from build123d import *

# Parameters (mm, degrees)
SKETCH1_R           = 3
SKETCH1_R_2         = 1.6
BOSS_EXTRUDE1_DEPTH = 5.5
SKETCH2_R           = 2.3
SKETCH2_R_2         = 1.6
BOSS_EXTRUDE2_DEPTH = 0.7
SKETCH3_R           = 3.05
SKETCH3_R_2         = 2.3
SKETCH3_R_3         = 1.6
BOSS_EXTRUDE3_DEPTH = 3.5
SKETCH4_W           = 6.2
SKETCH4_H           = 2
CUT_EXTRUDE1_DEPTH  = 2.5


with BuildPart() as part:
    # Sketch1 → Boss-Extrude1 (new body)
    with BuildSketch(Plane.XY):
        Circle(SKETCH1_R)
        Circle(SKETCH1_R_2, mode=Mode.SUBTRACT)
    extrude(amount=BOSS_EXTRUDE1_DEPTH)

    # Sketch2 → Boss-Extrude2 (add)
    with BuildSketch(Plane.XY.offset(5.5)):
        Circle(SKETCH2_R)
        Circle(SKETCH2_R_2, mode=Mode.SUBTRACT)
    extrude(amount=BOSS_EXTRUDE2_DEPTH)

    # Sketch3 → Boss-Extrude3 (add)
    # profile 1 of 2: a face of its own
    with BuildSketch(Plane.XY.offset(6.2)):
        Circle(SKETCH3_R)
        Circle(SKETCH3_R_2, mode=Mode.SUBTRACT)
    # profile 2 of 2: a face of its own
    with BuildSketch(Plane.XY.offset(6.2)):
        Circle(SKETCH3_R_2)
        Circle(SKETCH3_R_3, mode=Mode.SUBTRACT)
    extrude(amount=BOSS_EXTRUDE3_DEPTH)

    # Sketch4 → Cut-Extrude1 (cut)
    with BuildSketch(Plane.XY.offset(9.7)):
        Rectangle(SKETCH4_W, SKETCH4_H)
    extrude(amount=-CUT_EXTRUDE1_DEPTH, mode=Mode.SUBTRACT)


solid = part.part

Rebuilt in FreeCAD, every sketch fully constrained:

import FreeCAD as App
import Part
import Sketcher
from FreeCAD import Vector

doc = App.newDocument("Part")
params = doc.addObject("Spreadsheet::Sheet", "Params")
for row, (alias, value) in enumerate([
    ("sketch1_diameter", "6 mm"),
    ("sketch1_diameter2", "3.2 mm"),
    ("pad1_length", "5.5 mm"),
    ("sketch2_diameter", "4.6 mm"),
    ("sketch2_diameter2", "3.2 mm"),
    ("pad2_length", "0.7 mm"),
    ("sketch3_diameter", "6.1 mm"),
    ("sketch3_diameter2", "3.2 mm"),
    ("pad3_length", "3.5 mm"),
    ("sketch4_height", "2 mm"),
    ("sketch4_width", "6.2 mm"),
    ("pocket1_length", "2.5 mm"),
], start=1):
    params.set(f"A{row}", alias)
    params.set(f"B{row}", "=" + value)
    params.setAlias(f"B{row}", alias)

body = doc.addObject("PartDesign::Body", "Body")

# Sketch on XY plane
sketch1 = body.newObject("Sketcher::SketchObject", "Sketch")
sketch1.AttachmentSupport = (doc.getObject("XY_Plane"), [""])
sketch1.MapMode = "FlatFace"
sketch1.addGeometry(Part.Circle(Vector(0, 0, 0), Vector(0, 0, 1), 3), False)
sketch1.addGeometry(Part.Circle(Vector(0, 0, 0), Vector(0, 0, 1), 1.6), False)
sketch1.addConstraint(Sketcher.Constraint("Coincident", 0, 3, -1, 1))
sketch1.addConstraint(Sketcher.Constraint("Coincident", 1, 3, -1, 1))
sketch1.addConstraint(Sketcher.Constraint("Diameter", 0, 6.0))
sketch1.addConstraint(Sketcher.Constraint("Diameter", 1, 3.2))
sketch1.setExpression("Constraints[2]", "Params.sketch1_diameter")
sketch1.setExpression("Constraints[3]", "Params.sketch1_diameter2")
pad1 = body.newObject("PartDesign::Pad", "Pad")
pad1.Profile = sketch1
pad1.setExpression("Length", "Params.pad1_length")

# Sketch on XY plane
sketch2 = body.newObject("Sketcher::SketchObject", "Sketch001")
sketch2.AttachmentSupport = (doc.getObject("XY_Plane"), [""])
sketch2.MapMode = "FlatFace"
sketch2.AttachmentOffset = App.Placement(Vector(0, 0, 5.5), App.Rotation())
sketch2.addGeometry(Part.Circle(Vector(0, 0, 0), Vector(0, 0, 1), 2.3), False)
sketch2.addGeometry(Part.Circle(Vector(0, 0, 0), Vector(0, 0, 1), 1.6), False)
sketch2.addConstraint(Sketcher.Constraint("Coincident", 0, 3, -1, 1))
sketch2.addConstraint(Sketcher.Constraint("Coincident", 1, 3, -1, 1))
sketch2.addConstraint(Sketcher.Constraint("Diameter", 0, 4.6))
sketch2.addConstraint(Sketcher.Constraint("Diameter", 1, 3.2))
sketch2.setExpression("Constraints[2]", "Params.sketch2_diameter")
sketch2.setExpression("Constraints[3]", "Params.sketch2_diameter2")
pad2 = body.newObject("PartDesign::Pad", "Pad001")
pad2.Profile = sketch2
pad2.setExpression("Length", "Params.pad2_length")

# Sketch on XY plane
sketch3 = body.newObject("Sketcher::SketchObject", "Sketch002")
sketch3.AttachmentSupport = (doc.getObject("XY_Plane"), [""])
sketch3.MapMode = "FlatFace"
sketch3.AttachmentOffset = App.Placement(Vector(0, 0, 6.2), App.Rotation())
sketch3.addGeometry(Part.Circle(Vector(0, 0, 0), Vector(0, 0, 1), 3), False)
sketch3.addGeometry(Part.Circle(Vector(0, 0, 0), Vector(0, 0, 1), 1.6), False)
sketch3.addConstraint(Sketcher.Constraint("Coincident", 0, 3, -1, 1))
sketch3.addConstraint(Sketcher.Constraint("Coincident", 1, 3, -1, 1))
sketch3.addConstraint(Sketcher.Constraint("Diameter", 0, 6.1))
sketch3.addConstraint(Sketcher.Constraint("Diameter", 1, 3.2))
sketch3.setExpression("Constraints[2]", "Params.sketch3_diameter")
sketch3.setExpression("Constraints[3]", "Params.sketch3_diameter2")
pad3 = body.newObject("PartDesign::Pad", "Pad002")
pad3.Profile = sketch3
pad3.setExpression("Length", "Params.pad3_length")

# Sketch on XY plane
sketch4 = body.newObject("Sketcher::SketchObject", "Sketch003")
sketch4.AttachmentSupport = (doc.getObject("XY_Plane"), [""])
sketch4.MapMode = "FlatFace"
sketch4.AttachmentOffset = App.Placement(Vector(0, 0, 9.7), App.Rotation())
sketch4.addGeometry(Part.LineSegment(Vector(-3.1, 1, 0), Vector(-3.1, -1, 0)), False)
sketch4.addGeometry(Part.LineSegment(Vector(-3.1, -1, 0), Vector(3.1, -1, 0)), False)
sketch4.addGeometry(Part.LineSegment(Vector(3.1, -1, 0), Vector(3.1, 1, 0)), False)
sketch4.addGeometry(Part.LineSegment(Vector(3.1, 1, 0), Vector(-3.1, 1, 0)), False)
sketch4.addConstraint(Sketcher.Constraint("Coincident", 0, 2, 1, 1))
sketch4.addConstraint(Sketcher.Constraint("Coincident", 1, 2, 2, 1))
sketch4.addConstraint(Sketcher.Constraint("Coincident", 2, 2, 3, 1))
sketch4.addConstraint(Sketcher.Constraint("Coincident", 3, 2, 0, 1))
sketch4.addConstraint(Sketcher.Constraint("Vertical", 0))
sketch4.addConstraint(Sketcher.Constraint("Horizontal", 1))
sketch4.addConstraint(Sketcher.Constraint("Vertical", 2))
sketch4.addConstraint(Sketcher.Constraint("Horizontal", 3))
sketch4.addConstraint(Sketcher.Constraint("Symmetric", 0, 2, 2, 2, -1, 1))
sketch4.addConstraint(Sketcher.Constraint("DistanceY", 0, 2, 0, 1, 2.0))
sketch4.addConstraint(Sketcher.Constraint("DistanceX", 1, 1, 1, 2, 6.2))
sketch4.setExpression("Constraints[9]", "Params.sketch4_height")
sketch4.setExpression("Constraints[10]", "Params.sketch4_width")
pocket1 = body.newObject("PartDesign::Pocket", "Pocket")
pocket1.Profile = sketch4
pocket1.setExpression("Length", "Params.pocket1_length")

doc.recompute()
